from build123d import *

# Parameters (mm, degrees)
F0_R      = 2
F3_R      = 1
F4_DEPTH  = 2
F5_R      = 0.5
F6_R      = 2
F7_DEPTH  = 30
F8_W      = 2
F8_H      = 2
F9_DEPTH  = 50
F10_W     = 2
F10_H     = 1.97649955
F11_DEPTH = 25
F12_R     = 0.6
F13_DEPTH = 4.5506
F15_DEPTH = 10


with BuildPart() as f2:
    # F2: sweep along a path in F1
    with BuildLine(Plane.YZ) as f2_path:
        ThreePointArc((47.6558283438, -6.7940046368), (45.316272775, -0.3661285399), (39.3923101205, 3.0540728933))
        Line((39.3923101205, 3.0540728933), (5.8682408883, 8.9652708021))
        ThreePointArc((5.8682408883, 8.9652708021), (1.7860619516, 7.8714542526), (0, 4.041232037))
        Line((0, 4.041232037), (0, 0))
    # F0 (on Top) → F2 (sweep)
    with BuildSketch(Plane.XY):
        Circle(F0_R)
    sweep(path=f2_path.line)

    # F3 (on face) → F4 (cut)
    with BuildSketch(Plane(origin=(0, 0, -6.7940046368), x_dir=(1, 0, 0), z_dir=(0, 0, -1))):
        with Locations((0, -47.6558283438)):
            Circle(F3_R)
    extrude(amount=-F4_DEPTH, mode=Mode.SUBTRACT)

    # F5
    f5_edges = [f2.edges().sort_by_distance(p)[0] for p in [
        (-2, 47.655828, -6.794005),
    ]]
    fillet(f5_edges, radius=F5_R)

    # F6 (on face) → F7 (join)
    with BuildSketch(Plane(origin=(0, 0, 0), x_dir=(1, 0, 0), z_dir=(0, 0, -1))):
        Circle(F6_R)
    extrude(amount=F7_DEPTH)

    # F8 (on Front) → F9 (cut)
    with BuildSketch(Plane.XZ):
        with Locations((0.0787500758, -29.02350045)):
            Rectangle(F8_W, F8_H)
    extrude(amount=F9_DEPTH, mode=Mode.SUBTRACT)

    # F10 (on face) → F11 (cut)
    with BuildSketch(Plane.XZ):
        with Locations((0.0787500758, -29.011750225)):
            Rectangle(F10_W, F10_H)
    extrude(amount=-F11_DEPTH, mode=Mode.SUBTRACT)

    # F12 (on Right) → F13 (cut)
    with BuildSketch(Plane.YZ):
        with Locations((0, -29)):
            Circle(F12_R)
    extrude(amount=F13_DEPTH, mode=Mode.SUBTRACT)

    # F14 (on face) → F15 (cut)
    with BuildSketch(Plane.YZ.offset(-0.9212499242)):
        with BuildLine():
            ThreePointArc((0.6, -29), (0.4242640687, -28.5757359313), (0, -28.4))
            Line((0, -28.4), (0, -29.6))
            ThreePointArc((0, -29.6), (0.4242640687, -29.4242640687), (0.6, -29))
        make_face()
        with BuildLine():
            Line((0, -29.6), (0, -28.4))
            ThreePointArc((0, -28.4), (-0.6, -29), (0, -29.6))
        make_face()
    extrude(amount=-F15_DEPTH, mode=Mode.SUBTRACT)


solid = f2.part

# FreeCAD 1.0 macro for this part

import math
import FreeCAD as App
import Part
import Sketcher

V = App.Vector
Q = App.Units.Quantity


def edges_at(feature, points):
    """Names of the edges that pass closest to the given points."""
    edges = feature.Shape.Edges
    near = lambda p: min(range(len(edges)), key=lambda i: edges[i].distToShape(Part.Vertex(*p))[0])
    return sorted({f"Edge{near(p) + 1}" for p in points})

doc = App.newDocument("Part")
body = doc.addObject("PartDesign::Body", "Body")

# Sketch on XY plane
sketch1 = body.newObject("Sketcher::SketchObject", "Sketch")
sketch1.AttachmentSupport = (doc.getObject("XY_Plane"), [""])
sketch1.MapMode = "FlatFace"
sketch1.addGeometry(Part.Circle(V(0, 0, 0), V(0, 0, 1), 2), False)
sketch1.addConstraint(Sketcher.Constraint("Coincident", 0, 3, -1, 1))
sketch1.addConstraint(Sketcher.Constraint("Diameter", 0, Q("4 mm")))

# Sketch on YZ plane
sketch2 = body.newObject("Sketcher::SketchObject", "Sketch001")
sketch2.AttachmentSupport = (doc.getObject("YZ_Plane"), [""])
sketch2.MapMode = "FlatFace"
sketch2.addGeometry(Part.ArcOfCircle(Part.Circle(V(37.7, -6.8, 0), V(0, 0, 1), 10), math.radians(0), math.radians(80)), False)
sketch2.addGeometry(Part.LineSegment(V(39.4, 3.1, 0), V(5.9, 9, 0)), False)
sketch2.addGeometry(Part.ArcOfCircle(Part.Circle(V(5, 4, 0), V(0, 0, 1), 5), math.radians(80), math.radians(180)), False)
sketch2.addGeometry(Part.LineSegment(V(0, 4, 0), V(0, 0, 0)), False)
sketch2.addConstraint(Sketcher.Constraint("Tangent", 0, 2, 1, 1))
sketch2.addConstraint(Sketcher.Constraint("Tangent", 1, 2, 2, 1))
sketch2.addConstraint(Sketcher.Constraint("Tangent", 2, 2, 3, 1))
sketch2.addConstraint(Sketcher.Constraint("Vertical", 3))
sketch2.addConstraint(Sketcher.Constraint("Coincident", 3, 2, -1, 1))
sketch2.addConstraint(Sketcher.Constraint("Radius", 0, Q("10 mm")))
sketch2.addConstraint(Sketcher.Constraint("Radius", 2, Q("5 mm")))
sketch2.addConstraint(Sketcher.Constraint("Angle", 1, Q("170 deg")))
sketch2.addConstraint(Sketcher.Constraint("DistanceY", 3, 2, 3, 1, Q("4.041232 mm")))
sketch2.addConstraint(Sketcher.Constraint("DistanceX", -1, 1, 0, 3, Q("37.655828 mm")))
sketch2.addConstraint(Sketcher.Constraint("DistanceY", 0, 1, -1, 1, Q("6.794005 mm")))
doc.recompute()

additivepipe = body.newObject("PartDesign::AdditivePipe", "AdditivePipe")
additivepipe.Profile = sketch1
additivepipe.Spine = (sketch2, ["Edge1", "Edge2", "Edge3", "Edge4"])

# Sketch on XY plane
sketch3 = body.newObject("Sketcher::SketchObject", "Sketch002")
sketch3.AttachmentSupport = (doc.getObject("XY_Plane"), [""])
sketch3.MapMode = "FlatFace"
sketch3.AttachmentOffset = App.Placement(V(0, 0, -6.794005), App.Rotation())
sketch3.addGeometry(Part.Circle(V(0, 47.7, 0), V(0, 0, 1), 1), False)
sketch3.addConstraint(Sketcher.Constraint("PointOnObject", 0, 3, -2))
sketch3.addConstraint(Sketcher.Constraint("Diameter", 0, Q("2 mm")))
sketch3.addConstraint(Sketcher.Constraint("DistanceY", -1, 1, 0, 3, Q("47.655828 mm")))
pocket1 = body.newObject("PartDesign::Pocket", "Pocket")
pocket1.Profile = sketch3
pocket1.Length = 2
pocket1.Reversed = True
doc.recompute()

fillet = body.newObject("PartDesign::Fillet", "Fillet")
fillet.Base = (pocket1, edges_at(pocket1, [(-2, 47.656, -6.794)]))
fillet.Radius = 0.5

# Sketch on XY plane
sketch4 = body.newObject("Sketcher::SketchObject", "Sketch003")
sketch4.AttachmentSupport = (doc.getObject("XY_Plane"), [""])
sketch4.MapMode = "FlatFace"
sketch4.addGeometry(Part.Circle(V(0, 0, 0), V(0, 0, 1), 2), False)
sketch4.addConstraint(Sketcher.Constraint("Coincident", 0, 3, -1, 1))
sketch4.addConstraint(Sketcher.Constraint("Diameter", 0, Q("4 mm")))
pad1 = body.newObject("PartDesign::Pad", "Pad")
pad1.Profile = sketch4
pad1.Length = 30
pad1.Reversed = True

# Sketch on XZ plane
sketch5 = body.newObject("Sketcher::SketchObject", "Sketch004")
sketch5.AttachmentSupport = (doc.getObject("XZ_Plane"), [""])
sketch5.MapMode = "FlatFace"
sketch5.addGeometry(Part.LineSegment(V(-0.9, -28, 0), V(-0.9, -30, 0)), False)
sketch5.addGeometry(Part.LineSegment(V(-0.9, -30, 0), V(1.1, -30, 0)), False)
sketch5.addGeometry(Part.LineSegment(V(1.1, -30, 0), V(1.1, -28, 0)), False)
sketch5.addGeometry(Part.LineSegment(V(1.1, -28, 0), V(-0.9, -28, 0)), False)
sketch5.addConstraint(Sketcher.Constraint("Coincident", 0, 2, 1, 1))
sketch5.addConstraint(Sketcher.Constraint("Coincident", 1, 2, 2, 1))
sketch5.addConstraint(Sketcher.Constraint("Coincident", 2, 2, 3, 1))
sketch5.addConstraint(Sketcher.Constraint("Coincident", 3, 2, 0, 1))
sketch5.addConstraint(Sketcher.Constraint("Vertical", 0))
sketch5.addConstraint(Sketcher.Constraint("Horizontal", 1))
sketch5.addConstraint(Sketcher.Constraint("Vertical", 2))
sketch5.addConstraint(Sketcher.Constraint("Horizontal", 3))
sketch5.addConstraint(Sketcher.Constraint("Equal", 3, 0))
sketch5.addConstraint(Sketcher.Constraint("DistanceX", 1, 1, 1, 2, Q("2 mm")))
sketch5.addConstraint(Sketcher.Constraint("DistanceY", 0, 2, -1, 1, Q("30.0235 mm")))
sketch5.addConstraint(Sketcher.Constraint("DistanceX", 0, 2, -1, 1, Q("0.92125 mm")))
pocket2 = body.newObject("PartDesign::Pocket", "Pocket001")
pocket2.Profile = sketch5
pocket2.Length = 50
pocket2.Reversed = True

# Sketch on XZ plane
sketch6 = body.newObject("Sketcher::SketchObject", "Sketch005")
sketch6.AttachmentSupport = (doc.getObject("XZ_Plane"), [""])
sketch6.MapMode = "FlatFace"
sketch6.addGeometry(Part.LineSegment(V(-0.9, -28, 0), V(-0.9, -30, 0)), False)
sketch6.addGeometry(Part.LineSegment(V(-0.9, -30, 0), V(1.1, -30, 0)), False)
sketch6.addGeometry(Part.LineSegment(V(1.1, -30, 0), V(1.1, -28, 0)), False)
sketch6.addGeometry(Part.LineSegment(V(1.1, -28, 0), V(-0.9, -28, 0)), False)
sketch6.addConstraint(Sketcher.Constraint("Coincident", 0, 2, 1, 1))
sketch6.addConstraint(Sketcher.Constraint("Coincident", 1, 2, 2, 1))
sketch6.addConstraint(Sketcher.Constraint("Coincident", 2, 2, 3, 1))
sketch6.addConstraint(Sketcher.Constraint("Coincident", 3, 2, 0, 1))
sketch6.addConstraint(Sketcher.Constraint("Vertical", 0))
sketch6.addConstraint(Sketcher.Constraint("Horizontal", 1))
sketch6.addConstraint(Sketcher.Constraint("Vertical", 2))
sketch6.addConstraint(Sketcher.Constraint("Horizontal", 3))
sketch6.addConstraint(Sketcher.Constraint("DistanceX", 1, 1, 1, 2, Q("2 mm")))
sketch6.addConstraint(Sketcher.Constraint("DistanceY", 0, 2, -1, 1, Q("30 mm")))
sketch6.addConstraint(Sketcher.Constraint("DistanceY", 0, 2, 0, 1, Q("1.9765 mm")))
sketch6.addConstraint(Sketcher.Constraint("DistanceX", 0, 2, -1, 1, Q("0.92125 mm")))
pocket3 = body.newObject("PartDesign::Pocket", "Pocket002")
pocket3.Profile = sketch6
pocket3.Length = 25

# Sketch on YZ plane
sketch7 = body.newObject("Sketcher::SketchObject", "Sketch006")
sketch7.AttachmentSupport = (doc.getObject("YZ_Plane"), [""])
sketch7.MapMode = "FlatFace"
sketch7.addGeometry(Part.Circle(V(0, -29, 0), V(0, 0, 1), 0.6), False)
sketch7.addConstraint(Sketcher.Constraint("PointOnObject", 0, 3, -2))
sketch7.addConstraint(Sketcher.Constraint("Diameter", 0, Q("1.2 mm")))
sketch7.addConstraint(Sketcher.Constraint("DistanceY", 0, 3, -1, 1, Q("29 mm")))
pocket4 = body.newObject("PartDesign::Pocket", "Pocket003")
pocket4.Profile = sketch7
pocket4.Length = 4.5506
pocket4.Reversed = True

# Sketch on YZ plane
sketch8 = body.newObject("Sketcher::SketchObject", "Sketch007")
sketch8.AttachmentSupport = (doc.getObject("YZ_Plane"), [""])
sketch8.MapMode = "FlatFace"
sketch8.AttachmentOffset = App.Placement(V(0, 0, -0.92125), App.Rotation())
sketch8.addGeometry(Part.ArcOfCircle(Part.Circle(V(0, -29, 0), V(0, 0, 1), 0.6), math.radians(0), math.radians(90)), False)
sketch8.addGeometry(Part.ArcOfCircle(Part.Circle(V(0, -29, 0), V(0, 0, 1), 0.6), math.radians(90), math.radians(270)), False)
sketch8.addGeometry(Part.ArcOfCircle(Part.Circle(V(0, -29, 0), V(0, 0, 1), 0.6), math.radians(-90), math.radians(0)), False)
sketch8.addConstraint(Sketcher.Constraint("Tangent", 0, 2, 1, 1))
sketch8.addConstraint(Sketcher.Constraint("Tangent", 1, 2, 2, 1))
sketch8.addConstraint(Sketcher.Constraint("Tangent", 2, 2, 0, 1))
sketch8.addConstraint(Sketcher.Constraint("PointOnObject", 0, 3, -2))
sketch8.addConstraint(Sketcher.Constraint("PointOnObject", 0, 2, -2))
sketch8.addConstraint(Sketcher.Constraint("PointOnObject", 1, 2, -2))
sketch8.addConstraint(Sketcher.Constraint("Horizontal", 1, 3, 2, 2))
sketch8.addConstraint(Sketcher.Constraint("Radius", 0, Q("0.6 mm")))
sketch8.addConstraint(Sketcher.Constraint("DistanceY", 0, 3, -1, 1, Q("29 mm")))
pocket5 = body.newObject("PartDesign::Pocket", "Pocket004")
pocket5.Profile = sketch8
pocket5.Length = 10

doc.recompute()
